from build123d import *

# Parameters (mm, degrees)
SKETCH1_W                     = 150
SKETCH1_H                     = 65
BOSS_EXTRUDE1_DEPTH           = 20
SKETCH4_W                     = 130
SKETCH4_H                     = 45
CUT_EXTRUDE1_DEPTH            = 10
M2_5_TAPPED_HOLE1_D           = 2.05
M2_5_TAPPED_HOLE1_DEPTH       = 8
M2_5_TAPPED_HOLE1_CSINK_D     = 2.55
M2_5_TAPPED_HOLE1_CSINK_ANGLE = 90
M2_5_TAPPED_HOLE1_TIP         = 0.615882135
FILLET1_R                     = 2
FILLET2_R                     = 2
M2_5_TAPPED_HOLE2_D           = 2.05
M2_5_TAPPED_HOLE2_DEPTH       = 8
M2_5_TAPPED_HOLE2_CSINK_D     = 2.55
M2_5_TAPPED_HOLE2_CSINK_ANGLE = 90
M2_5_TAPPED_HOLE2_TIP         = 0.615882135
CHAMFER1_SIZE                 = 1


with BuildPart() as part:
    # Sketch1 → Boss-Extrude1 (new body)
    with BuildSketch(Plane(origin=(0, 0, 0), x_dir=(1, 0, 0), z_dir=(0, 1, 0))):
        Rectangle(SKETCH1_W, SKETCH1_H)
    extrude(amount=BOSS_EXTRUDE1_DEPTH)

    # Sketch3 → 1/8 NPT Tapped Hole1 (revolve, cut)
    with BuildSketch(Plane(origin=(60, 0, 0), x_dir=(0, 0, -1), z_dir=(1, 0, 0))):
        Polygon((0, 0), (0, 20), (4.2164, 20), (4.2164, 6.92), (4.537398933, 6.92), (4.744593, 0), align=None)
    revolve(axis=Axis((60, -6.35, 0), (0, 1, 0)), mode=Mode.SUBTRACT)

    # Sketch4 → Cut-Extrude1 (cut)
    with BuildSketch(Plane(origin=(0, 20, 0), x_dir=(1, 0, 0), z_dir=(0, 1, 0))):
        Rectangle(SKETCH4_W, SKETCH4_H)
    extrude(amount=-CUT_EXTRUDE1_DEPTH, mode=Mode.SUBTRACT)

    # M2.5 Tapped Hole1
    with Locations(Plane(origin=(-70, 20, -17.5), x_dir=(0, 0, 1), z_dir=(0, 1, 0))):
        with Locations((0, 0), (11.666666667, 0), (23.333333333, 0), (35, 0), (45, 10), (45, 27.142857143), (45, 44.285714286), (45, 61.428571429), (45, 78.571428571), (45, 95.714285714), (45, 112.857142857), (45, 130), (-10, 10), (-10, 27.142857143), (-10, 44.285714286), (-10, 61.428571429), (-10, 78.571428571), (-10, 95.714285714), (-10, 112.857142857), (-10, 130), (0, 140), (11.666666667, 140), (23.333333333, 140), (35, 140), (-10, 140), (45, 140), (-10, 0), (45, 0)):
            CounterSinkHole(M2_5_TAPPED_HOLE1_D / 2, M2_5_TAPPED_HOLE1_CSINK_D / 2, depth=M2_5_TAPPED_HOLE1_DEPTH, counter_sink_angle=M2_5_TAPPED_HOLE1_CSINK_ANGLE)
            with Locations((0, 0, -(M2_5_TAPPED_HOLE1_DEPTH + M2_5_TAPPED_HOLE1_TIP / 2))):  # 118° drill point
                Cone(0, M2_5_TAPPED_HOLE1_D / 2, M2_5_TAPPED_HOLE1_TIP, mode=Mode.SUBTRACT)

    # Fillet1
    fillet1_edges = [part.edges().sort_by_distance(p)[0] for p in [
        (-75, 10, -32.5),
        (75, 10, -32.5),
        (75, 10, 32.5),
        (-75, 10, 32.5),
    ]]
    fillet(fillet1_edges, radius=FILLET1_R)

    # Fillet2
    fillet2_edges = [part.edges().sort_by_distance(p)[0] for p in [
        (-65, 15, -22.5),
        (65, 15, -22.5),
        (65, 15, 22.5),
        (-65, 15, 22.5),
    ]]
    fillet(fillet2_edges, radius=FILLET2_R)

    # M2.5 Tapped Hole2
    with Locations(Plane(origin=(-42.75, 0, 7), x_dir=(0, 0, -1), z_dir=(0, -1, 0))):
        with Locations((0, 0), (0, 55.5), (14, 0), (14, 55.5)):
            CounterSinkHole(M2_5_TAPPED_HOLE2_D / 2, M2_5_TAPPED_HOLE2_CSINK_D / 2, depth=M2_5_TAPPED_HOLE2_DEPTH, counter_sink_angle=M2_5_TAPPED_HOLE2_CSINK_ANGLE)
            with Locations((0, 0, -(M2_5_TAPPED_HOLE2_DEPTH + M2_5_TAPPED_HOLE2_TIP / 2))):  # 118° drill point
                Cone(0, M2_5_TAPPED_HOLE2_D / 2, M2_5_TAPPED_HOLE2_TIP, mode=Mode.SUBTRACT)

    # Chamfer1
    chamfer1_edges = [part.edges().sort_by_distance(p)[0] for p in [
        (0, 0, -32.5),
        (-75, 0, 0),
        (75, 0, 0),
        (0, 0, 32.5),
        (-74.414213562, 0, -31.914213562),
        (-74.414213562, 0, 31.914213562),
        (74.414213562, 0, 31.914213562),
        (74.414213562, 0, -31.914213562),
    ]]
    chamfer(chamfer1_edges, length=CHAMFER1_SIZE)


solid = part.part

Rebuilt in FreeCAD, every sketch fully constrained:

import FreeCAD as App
import Part
import Sketcher
from FreeCAD import Vector


def edges_at(feature, points):
    """Names of the edges that pass closest to the given points."""
    edges = feature.Shape.Edges
    near = lambda p: min(range(len(edges)), key=lambda i: edges[i].distToShape(Part.Vertex(*p))[0])
    return sorted({f"Edge{near(p) + 1}" for p in points})


def add_polygon(sketch, points):
    """Adds a closed chain of lines whose ends are joined by coincident constraints."""
    first, n = sketch.GeometryCount, len(points)
    for a, b in zip(points, points[1:] + points[:1]):
        sketch.addGeometry(Part.LineSegment(App.Vector(*a, 0), App.Vector(*b, 0)), False)
    for i in range(n):
        sketch.addConstraint(Sketcher.Constraint("Coincident", first + i, 2, first + (i + 1) % n, 1))

doc = App.newDocument("Part")
params = doc.addObject("Spreadsheet::Sheet", "Params")
for row, (alias, value) in enumerate([
    ("sketch1_width", "150 mm"),
    ("sketch1_height", "65 mm"),
    ("pad1_length", "20 mm"),
    ("sketch2_width", "20 mm"),
    ("sketch2_width2", "13.08 mm"),
    ("groove_angle", "360 deg"),
    ("sketch3_width", "130 mm"),
    ("sketch3_height", "45 mm"),
    ("pocket1_length", "10 mm"),
    ("sketch4_diameter", "2.05 mm"),
    ("hole_diameter", "2.05 mm"),
    ("hole_depth", "8 mm"),
    ("hole_csink_diameter", "2.55 mm"),
    ("fillet_radius", "2 mm"),
    ("fillet2_radius", "2 mm"),
    ("sketch5_diameter", "2.05 mm"),
    ("hole2_diameter", "2.05 mm"),
    ("hole2_depth", "8 mm"),
    ("hole2_csink_diameter", "2.55 mm"),
    ("chamfer_size", "1 mm"),
], start=1):
    params.set(f"A{row}", alias)
    params.set(f"B{row}", "=" + value)
    params.setAlias(f"B{row}", alias)

body = doc.addObject("PartDesign::Body", "Body")

sketch1 = body.newObject("Sketcher::SketchObject", "Sketch")
sketch1.AttachmentSupport = (doc.getObject("XZ_Plane"), [""])
sketch1.MapMode = "FlatFace"
add_polygon(sketch1, [(-75, -32.5), (-75, 32.5), (75, 32.5), (75, -32.5)])
sketch1.addConstraint(Sketcher.Constraint("Vertical", 0))
sketch1.addConstraint(Sketcher.Constraint("Horizontal", 1))
sketch1.addConstraint(Sketcher.Constraint("Vertical", 2))
sketch1.addConstraint(Sketcher.Constraint("Horizontal", 3))
sketch1.addConstraint(Sketcher.Constraint("Symmetric", 0, 2, 2, 2, -1, 1))
sketch1.addConstraint(Sketcher.Constraint("DistanceX", 1, 1, 1, 2, 150.0))
sketch1.addConstraint(Sketcher.Constraint("DistanceY", 0, 1, 0, 2, 65.0))
sketch1.setExpression("Constraints[9]", "Params.sketch1_width")
sketch1.setExpression("Constraints[10]", "Params.sketch1_height")
pad1 = body.newObject("PartDesign::Pad", "Pad")
pad1.Profile = sketch1
pad1.setExpression("Length", "Params.pad1_length")
pad1.Reversed = True

sketch2 = body.newObject("Sketcher::SketchObject", "Sketch001")
sketch2.AttachmentSupport = (doc.getObject("YZ_Plane"), [""])
sketch2.MapMode = "FlatFace"
sketch2.AttachmentOffset = App.Placement(Vector(0, 0, 60), App.Rotation())
add_polygon(sketch2, [(20, 0), (0, 0), (0, -4.744593), (6.92, -4.537399), (6.92, -4.2164), (20, -4.2164)])
sketch2.addConstraint(Sketcher.Constraint("Horizontal", 0))
sketch2.addConstraint(Sketcher.Constraint("Vertical", 1))
sketch2.addConstraint(Sketcher.Constraint("Vertical", 3))
sketch2.addConstraint(Sketcher.Constraint("Horizontal", 4))
sketch2.addConstraint(Sketcher.Constraint("Vertical", 5))
sketch2.addConstraint(Sketcher.Constraint("Coincident", 0, 2, -1, 1))
sketch2.addConstraint(Sketcher.Constraint("DistanceX", 0, 2, 0, 1, 20.0))
sketch2.addConstraint(Sketcher.Constraint("DistanceX", 4, 1, 4, 2, 13.08))
sketch2.addConstraint(Sketcher.Constraint("DistanceY", 3, 1, 3, 2, 0.320999))
sketch2.addConstraint(Sketcher.Constraint("DistanceY", 5, 1, 5, 2, 4.2164))
sketch2.addConstraint(Sketcher.Constraint("Distance", 2, 6.923101))
sketch2.setExpression("Constraints[12]", "Params.sketch2_width")
sketch2.setExpression("Constraints[13]", "Params.sketch2_width2")
groove = body.newObject("PartDesign::Groove", "Groove")
groove.Profile = sketch2
groove.ReferenceAxis = (sketch2, ["H_Axis"])
groove.setExpression("Angle", "Params.groove_angle")

sketch3 = body.newObject("Sketcher::SketchObject", "Sketch002")
sketch3.AttachmentSupport = (doc.getObject("XZ_Plane"), [""])
sketch3.MapMode = "FlatFace"
sketch3.AttachmentOffset = App.Placement(Vector(0, 0, -20), App.Rotation())
add_polygon(sketch3, [(-65, -22.5), (-65, 22.5), (65, 22.5), (65, -22.5)])
sketch3.addConstraint(Sketcher.Constraint("Vertical", 0))
sketch3.addConstraint(Sketcher.Constraint("Horizontal", 1))
sketch3.addConstraint(Sketcher.Constraint("Vertical", 2))
sketch3.addConstraint(Sketcher.Constraint("Horizontal", 3))
sketch3.addConstraint(Sketcher.Constraint("Symmetric", 0, 2, 2, 2, -1, 1))
sketch3.addConstraint(Sketcher.Constraint("DistanceX", 1, 1, 1, 2, 130.0))
sketch3.addConstraint(Sketcher.Constraint("DistanceY", 0, 1, 0, 2, 45.0))
sketch3.setExpression("Constraints[9]", "Params.sketch3_width")
sketch3.setExpression("Constraints[10]", "Params.sketch3_height")
pocket1 = body.newObject("PartDesign::Pocket", "Pocket")
pocket1.Profile = sketch3
pocket1.setExpression("Length", "Params.pocket1_length")
pocket1.Reversed = True

sketch4 = body.newObject("Sketcher::SketchObject", "Sketch003")
sketch4.AttachmentSupport = (doc.getObject("XZ_Plane"), [""])
sketch4.MapMode = "FlatFace"
sketch4.AttachmentOffset = App.Placement(Vector(0, 0, -20), App.Rotation())
sketch4.addGeometry(Part.Circle(Vector(-70, -17.5, 0), Vector(0, 0, 1), 1.025), False)
sketch4.addGeometry(Part.Circle(Vector(-70, -5.833333, 0), Vector(0, 0, 1), 1.025), False)
sketch4.addGeometry(Part.Circle(Vector(-70, 5.833333, 0), Vector(0, 0, 1), 1.025), False)
sketch4.addGeometry(Part.Circle(Vector(-70, 17.5, 0), Vector(0, 0, 1), 1.025), False)
sketch4.addGeometry(Part.Circle(Vector(-60, 27.5, 0), Vector(0, 0, 1), 1.025), False)
sketch4.addGeometry(Part.Circle(Vector(-42.857143, 27.5, 0), Vector(0, 0, 1), 1.025), False)
sketch4.addGeometry(Part.Circle(Vector(-25.714286, 27.5, 0), Vector(0, 0, 1), 1.025), False)
sketch4.addGeometry(Part.Circle(Vector(-8.571429, 27.5, 0), Vector(0, 0, 1), 1.025), False)
sketch4.addGeometry(Part.Circle(Vector(8.571429, 27.5, 0), Vector(0, 0, 1), 1.025), False)
sketch4.addGeometry(Part.Circle(Vector(25.714286, 27.5, 0), Vector(0, 0, 1), 1.025), False)
sketch4.addGeometry(Part.Circle(Vector(42.857143, 27.5, 0), Vector(0, 0, 1), 1.025), False)
sketch4.addGeometry(Part.Circle(Vector(60, 27.5, 0), Vector(0, 0, 1), 1.025), False)
sketch4.addGeometry(Part.Circle(Vector(-60, -27.5, 0), Vector(0, 0, 1), 1.025), False)
sketch4.addGeometry(Part.Circle(Vector(-42.857143, -27.5, 0), Vector(0, 0, 1), 1.025), False)
sketch4.addGeometry(Part.Circle(Vector(-25.714286, -27.5, 0), Vector(0, 0, 1), 1.025), False)
sketch4.addGeometry(Part.Circle(Vector(-8.571429, -27.5, 0), Vector(0, 0, 1), 1.025), False)
sketch4.addGeometry(Part.Circle(Vector(8.571429, -27.5, 0), Vector(0, 0, 1), 1.025), False)
sketch4.addGeometry(Part.Circle(Vector(25.714286, -27.5, 0), Vector(0, 0, 1), 1.025), False)
sketch4.addGeometry(Part.Circle(Vector(42.857143, -27.5, 0), Vector(0, 0, 1), 1.025), False)
sketch4.addGeometry(Part.Circle(Vector(60, -27.5, 0), Vector(0, 0, 1), 1.025), False)
sketch4.addGeometry(Part.Circle(Vector(70, -17.5, 0), Vector(0, 0, 1), 1.025), False)
sketch4.addGeometry(Part.Circle(Vector(70, -5.833333, 0), Vector(0, 0, 1), 1.025), False)
sketch4.addGeometry(Part.Circle(Vector(70, 5.833333, 0), Vector(0, 0, 1), 1.025), False)
sketch4.addGeometry(Part.Circle(Vector(70, 17.5, 0), Vector(0, 0, 1), 1.025), False)
sketch4.addGeometry(Part.Circle(Vector(70, -27.5, 0), Vector(0, 0, 1), 1.025), False)
sketch4.addGeometry(Part.Circle(Vector(70, 27.5, 0), Vector(0, 0, 1), 1.025), False)
sketch4.addGeometry(Part.Circle(Vector(-70, -27.5, 0), Vector(0, 0, 1), 1.025), False)
sketch4.addGeometry(Part.Circle(Vector(-70, 27.5, 0), Vector(0, 0, 1), 1.025), False)
sketch4.addConstraint(Sketcher.Constraint("Equal", 0, 1))
sketch4.addConstraint(Sketcher.Constraint("Equal", 1, 2))
sketch4.addConstraint(Sketcher.Constraint("Equal", 2, 3))
sketch4.addConstraint(Sketcher.Constraint("Equal", 3, 4))
sketch4.addConstraint(Sketcher.Constraint("Equal", 4, 5))
sketch4.addConstraint(Sketcher.Constraint("Equal", 5, 6))
sketch4.addConstraint(Sketcher.Constraint("Equal", 6, 7))
sketch4.addConstraint(Sketcher.Constraint("Equal", 7, 8))
sketch4.addConstraint(Sketcher.Constraint("Equal", 8, 9))
sketch4.addConstraint(Sketcher.Constraint("Equal", 9, 10))
sketch4.addConstraint(Sketcher.Constraint("Equal", 10, 11))
sketch4.addConstraint(Sketcher.Constraint("Equal", 11, 12))
sketch4.addConstraint(Sketcher.Constraint("Equal", 12, 13))
sketch4.addConstraint(Sketcher.Constraint("Equal", 13, 14))
sketch4.addConstraint(Sketcher.Constraint("Equal", 14, 15))
sketch4.addConstraint(Sketcher.Constraint("Equal", 15, 16))
sketch4.addConstraint(Sketcher.Constraint("Equal", 16, 17))
sketch4.addConstraint(Sketcher.Constraint("Equal", 17, 18))
sketch4.addConstraint(Sketcher.Constraint("Equal", 18, 19))
sketch4.addConstraint(Sketcher.Constraint("Equal", 19, 20))
sketch4.addConstraint(Sketcher.Constraint("Equal", 20, 21))
sketch4.addConstraint(Sketcher.Constraint("Equal", 21, 22))
sketch4.addConstraint(Sketcher.Constraint("Equal", 22, 23))
sketch4.addConstraint(Sketcher.Constraint("Equal", 23, 24))
sketch4.addConstraint(Sketcher.Constraint("Equal", 24, 25))
sketch4.addConstraint(Sketcher.Constraint("Equal", 25, 26))
sketch4.addConstraint(Sketcher.Constraint("Equal", 26, 27))
sketch4.addConstraint(Sketcher.Constraint("Symmetric", 11, 3, 12, 3, -1, 1))
sketch4.addConstraint(Sketcher.Constraint("Symmetric", 10, 3, 13, 3, -1, 1))
sketch4.addConstraint(Sketcher.Constraint("Symmetric", 9, 3, 14, 3, -1, 1))
sketch4.addConstraint(Sketcher.Constraint("Symmetric", 8, 3, 15, 3, -1, 1))
sketch4.addConstraint(Sketcher.Constraint("Symmetric", 7, 3, 16, 3, -1, 1))
sketch4.addConstraint(Sketcher.Constraint("Symmetric", 6, 3, 17, 3, -1, 1))
sketch4.addConstraint(Sketcher.Constraint("Symmetric", 5, 3, 18, 3, -1, 1))
sketch4.addConstraint(Sketcher.Constraint("Symmetric", 4, 3, 19, 3, -1, 1))
sketch4.addConstraint(Sketcher.Constraint("Symmetric", 3, 3, 20, 3, -1, 1))
sketch4.addConstraint(Sketcher.Constraint("Symmetric", 2, 3, 21, 3, -1, 1))
sketch4.addConstraint(Sketcher.Constraint("Symmetric", 1, 3, 22, 3, -1, 1))
sketch4.addConstraint(Sketcher.Constraint("Symmetric", 0, 3, 23, 3, -1, 1))
sketch4.addConstraint(Sketcher.Constraint("Symmetric", 25, 3, 26, 3, -1, 1))
sketch4.addConstraint(Sketcher.Constraint("Symmetric", 24, 3, 27, 3, -1, 1))
sketch4.addConstraint(Sketcher.Constraint("Symmetric", 7, 3, 8, 3, -2))
sketch4.addConstraint(Sketcher.Constraint("Symmetric", 6, 3, 9, 3, -2))
sketch4.addConstraint(Sketcher.Constraint("Symmetric", 5, 3, 10, 3, -2))
sketch4.addConstraint(Sketcher.Constraint("Symmetric", 4, 3, 11, 3, -2))
sketch4.addConstraint(Sketcher.Constraint("Symmetric", 0, 3, 20, 3, -2))
sketch4.addConstraint(Sketcher.Constraint("Symmetric", 1, 3, 21, 3, -2))
sketch4.addConstraint(Sketcher.Constraint("Symmetric", 24, 3, 26, 3, -2))
sketch4.addConstraint(Sketcher.Constraint("Horizontal", 4, 3, 5, 3))
sketch4.addConstraint(Sketcher.Constraint("Horizontal", 5, 3, 6, 3))
sketch4.addConstraint(Sketcher.Constraint("Horizontal", 6, 3, 7, 3))
sketch4.addConstraint(Sketcher.Constraint("Horizontal", 19, 3, 24, 3))
sketch4.addConstraint(Sketcher.Constraint("Vertical", 0, 3, 1, 3))
sketch4.addConstraint(Sketcher.Constraint("Vertical", 23, 3, 24, 3))
sketch4.addConstraint(Sketcher.Constraint("Diameter", 0, 2.05))
sketch4.addConstraint(Sketcher.Constraint("DistanceX", 0, 3, -1, 1, 70.0))
sketch4.addConstraint(Sketcher.Constraint("DistanceX", 4, 3, -1, 1, 60.0))
sketch4.addConstraint(Sketcher.Constraint("DistanceY", 0, 3, 3, 3, 35.0))
sketch4.addConstraint(Sketcher.Constraint("DistanceY", 3, 3, 4, 3, 10.0))
sketch4.addConstraint(Sketcher.Constraint("DistanceX", 7, 3, -1, 1, 8.571429))
sketch4.addConstraint(Sketcher.Constraint("DistanceX", 5, 3, 8, 3, 51.428571))
sketch4.addConstraint(Sketcher.Constraint("DistanceX", 6, 3, 9, 3, 51.428571))
sketch4.addConstraint(Sketcher.Constraint("DistanceY", 1, 3, -1, 1, 5.833333))
sketch4.setExpression("Constraints[54]", "Params.sketch4_diameter")
doc.recompute()
hole = body.newObject("PartDesign::Hole", "Hole")
hole.Profile = sketch4
hole.ThreadType = "None"
hole.setExpression("Diameter", "Params.hole_diameter")
hole.DepthType = "Dimension"
hole.setExpression("Depth", "Params.hole_depth")
hole.DrillPoint = "Angled"
hole.DrillPointAngle = 118
hole.HoleCutType = "Countersink"
hole.setExpression("HoleCutDiameter", "Params.hole_csink_diameter")
hole.HoleCutCountersinkAngle = 90
hole.Reversed = True
doc.recompute()

fillet = body.newObject("PartDesign::Fillet", "Fillet")
fillet.Base = (hole, edges_at(hole, [
    (-75, 10, -32.5),
    (75, 10, -32.5),
    (75, 10, 32.5),
    (-75, 10, 32.5),
]))
fillet.setExpression("Radius", "Params.fillet_radius")
doc.recompute()

fillet2 = body.newObject("PartDesign::Fillet", "Fillet001")
fillet2.Base = (fillet, edges_at(fillet, [
    (-65, 15, -22.5),
    (65, 15, -22.5),
    (65, 15, 22.5),
    (-65, 15, 22.5),
]))
fillet2.setExpression("Radius", "Params.fillet2_radius")

sketch5 = body.newObject("Sketcher::SketchObject", "Sketch004")
sketch5.AttachmentSupport = (doc.getObject("XZ_Plane"), [""])
sketch5.MapMode = "FlatFace"
sketch5.addGeometry(Part.Circle(Vector(-42.75, 7, 0), Vector(0, 0, 1), 1.025), False)
sketch5.addGeometry(Part.Circle(Vector(12.75, 7, 0), Vector(0, 0, 1), 1.025), False)
sketch5.addGeometry(Part.Circle(Vector(-42.75, -7, 0), Vector(0, 0, 1), 1.025), False)
sketch5.addGeometry(Part.Circle(Vector(12.75, -7, 0), Vector(0, 0, 1), 1.025), False)
sketch5.addConstraint(Sketcher.Constraint("Equal", 0, 1))
sketch5.addConstraint(Sketcher.Constraint("Equal", 1, 2))
sketch5.addConstraint(Sketcher.Constraint("Equal", 2, 3))
sketch5.addConstraint(Sketcher.Constraint("Symmetric", 0, 3, 2, 3, -1))
sketch5.addConstraint(Sketcher.Constraint("Symmetric", 1, 3, 3, 3, -1))
sketch5.addConstraint(Sketcher.Constraint("Horizontal", 0, 3, 1, 3))
sketch5.addConstraint(Sketcher.Constraint("Diameter", 0, 2.05))
sketch5.addConstraint(Sketcher.Constraint("DistanceY", -1, 1, 0, 3, 7.0))
sketch5.addConstraint(Sketcher.Constraint("DistanceX", 0, 3, 1, 3, 55.5))
sketch5.addConstraint(Sketcher.Constraint("DistanceX", 0, 3, -1, 1, 42.75))
sketch5.setExpression("Constraints[6]", "Params.sketch5_diameter")
doc.recompute()
hole2 = body.newObject("PartDesign::Hole", "Hole001")
hole2.Profile = sketch5
hole2.ThreadType = "None"
hole2.setExpression("Diameter", "Params.hole2_diameter")
hole2.DepthType = "Dimension"
hole2.setExpression("Depth", "Params.hole2_depth")
hole2.DrillPoint = "Angled"
hole2.DrillPointAngle = 118
hole2.HoleCutType = "Countersink"
hole2.setExpression("HoleCutDiameter", "Params.hole2_csink_diameter")
hole2.HoleCutCountersinkAngle = 90
doc.recompute()

chamfer = body.newObject("PartDesign::Chamfer", "Chamfer")
chamfer.Base = (hole2, edges_at(hole2, [
    (0, 0, -32.5),
    (-75, 0, 0),
    (75, 0, 0),
    (0, 0, 32.5),
    (-74.414, 0, -31.914),
    (-74.414, 0, 31.914),
    (74.414, 0, 31.914),
    (74.414, 0, -31.914),
]))
chamfer.setExpression("Size", "Params.chamfer_size")

doc.recompute()
